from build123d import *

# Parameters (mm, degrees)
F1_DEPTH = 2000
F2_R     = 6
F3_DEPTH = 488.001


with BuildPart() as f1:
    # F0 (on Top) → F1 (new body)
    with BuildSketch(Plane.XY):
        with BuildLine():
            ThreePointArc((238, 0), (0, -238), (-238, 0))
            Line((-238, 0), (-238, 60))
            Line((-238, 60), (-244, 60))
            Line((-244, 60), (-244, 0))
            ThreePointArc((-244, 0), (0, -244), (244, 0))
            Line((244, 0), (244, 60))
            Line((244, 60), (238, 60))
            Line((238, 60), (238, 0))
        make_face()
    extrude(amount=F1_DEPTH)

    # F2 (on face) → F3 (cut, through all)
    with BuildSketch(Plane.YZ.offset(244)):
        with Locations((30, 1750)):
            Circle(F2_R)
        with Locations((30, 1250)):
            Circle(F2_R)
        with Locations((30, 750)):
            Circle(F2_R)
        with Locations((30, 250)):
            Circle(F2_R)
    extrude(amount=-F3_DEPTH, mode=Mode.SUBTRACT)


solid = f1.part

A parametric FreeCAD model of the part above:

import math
import FreeCAD as App
import Part
import Sketcher
Q = App.Units.Quantity

doc = App.newDocument("Part")
body = doc.addObject("PartDesign::Body", "Body")

sketch1 = body.newObject("Sketcher::SketchObject", "Sketch")
sketch1.AttachmentSupport = (doc.getObject("XY_Plane"), [""])
sketch1.MapMode = "FlatFace"
sketch1.addGeometry(Part.ArcOfCircle(Part.Circle(App.Vector(0, 0, 0), App.Vector(0, 0, 1), 238), math.radians(180), math.radians(360)), False)
sketch1.addGeometry(Part.LineSegment(App.Vector(-238, 0, 0), App.Vector(-238, 60, 0)), False)
sketch1.addGeometry(Part.LineSegment(App.Vector(-238, 60, 0), App.Vector(-244, 60, 0)), False)
sketch1.addGeometry(Part.LineSegment(App.Vector(-244, 60, 0), App.Vector(-244, 0, 0)), False)
sketch1.addGeometry(Part.ArcOfCircle(Part.Circle(App.Vector(0, 0, 0), App.Vector(0, 0, 1), 244), math.radians(180), math.radians(360)), False)
sketch1.addGeometry(Part.LineSegment(App.Vector(244, 0, 0), App.Vector(244, 60, 0)), False)
sketch1.addGeometry(Part.LineSegment(App.Vector(244, 60, 0), App.Vector(238, 60, 0)), False)
sketch1.addGeometry(Part.LineSegment(App.Vector(238, 60, 0), App.Vector(238, 0, 0)), False)
sketch1.addConstraint(Sketcher.Constraint("Tangent", 0, 1, 1, 1))
sketch1.addConstraint(Sketcher.Constraint("Coincident", 1, 2, 2, 1))
sketch1.addConstraint(Sketcher.Constraint("Coincident", 2, 2, 3, 1))
sketch1.addConstraint(Sketcher.Constraint("Tangent", 3, 2, 4, 1))
sketch1.addConstraint(Sketcher.Constraint("Tangent", 4, 2, 5, 1))
sketch1.addConstraint(Sketcher.Constraint("Coincident", 5, 2, 6, 1))
sketch1.addConstraint(Sketcher.Constraint("Coincident", 6, 2, 7, 1))
sketch1.addConstraint(Sketcher.Constraint("Tangent", 7, 2, 0, 2))
sketch1.addConstraint(Sketcher.Constraint("Vertical", 1))
sketch1.addConstraint(Sketcher.Constraint("Horizontal", 2))
sketch1.addConstraint(Sketcher.Constraint("Vertical", 3))
sketch1.addConstraint(Sketcher.Constraint("Vertical", 5))
sketch1.addConstraint(Sketcher.Constraint("Horizontal", 6))
sketch1.addConstraint(Sketcher.Constraint("Vertical", 7))
sketch1.addConstraint(Sketcher.Constraint("Coincident", 0, 3, -1, 1))
sketch1.addConstraint(Sketcher.Constraint("Coincident", 4, 3, -1, 1))
sketch1.addConstraint(Sketcher.Constraint("Horizontal", 2, 2, 5, 2))
sketch1.addConstraint(Sketcher.Constraint("Radius", 0, Q("238 mm")))
sketch1.addConstraint(Sketcher.Constraint("Radius", 4, Q("244 mm")))
sketch1.addConstraint(Sketcher.Constraint("DistanceY", 1, 1, 1, 2, Q("60 mm")))
pad1 = body.newObject("PartDesign::Pad", "Pad")
pad1.Profile = sketch1
pad1.Length = 2000

sketch2 = body.newObject("Sketcher::SketchObject", "Sketch001")
sketch2.AttachmentSupport = (doc.getObject("YZ_Plane"), [""])
sketch2.MapMode = "FlatFace"
sketch2.AttachmentOffset = App.Placement(App.Vector(0, 0, 244), App.Rotation())
sketch2.addGeometry(Part.Circle(App.Vector(30, 1750, 0), App.Vector(0, 0, 1), 6), False)
sketch2.addGeometry(Part.Circle(App.Vector(30, 1250, 0), App.Vector(0, 0, 1), 6), False)
sketch2.addGeometry(Part.Circle(App.Vector(30, 750, 0), App.Vector(0, 0, 1), 6), False)
sketch2.addGeometry(Part.Circle(App.Vector(30, 250, 0), App.Vector(0, 0, 1), 6), False)
sketch2.addConstraint(Sketcher.Constraint("Equal", 0, 1))
sketch2.addConstraint(Sketcher.Constraint("Equal", 1, 2))
sketch2.addConstraint(Sketcher.Constraint("Equal", 2, 3))
sketch2.addConstraint(Sketcher.Constraint("Vertical", 0, 3, 1, 3))
sketch2.addConstraint(Sketcher.Constraint("Vertical", 1, 3, 2, 3))
sketch2.addConstraint(Sketcher.Constraint("Vertical", 2, 3, 3, 3))
sketch2.addConstraint(Sketcher.Constraint("Diameter", 0, Q("12 mm")))
sketch2.addConstraint(Sketcher.Constraint("DistanceX", -1, 1, 0, 3, Q("30 mm")))
sketch2.addConstraint(Sketcher.Constraint("DistanceY", -1, 1, 0, 3, Q("1750 mm")))
sketch2.addConstraint(Sketcher.Constraint("DistanceY", -1, 1, 1, 3, Q("1250 mm")))
sketch2.addConstraint(Sketcher.Constraint("DistanceY", -1, 1, 2, 3, Q("750 mm")))
sketch2.addConstraint(Sketcher.Constraint("DistanceY", -1, 1, 3, 3, Q("250 mm")))
pocket1 = body.newObject("PartDesign::Pocket", "Pocket")
pocket1.Profile = sketch2
pocket1.Type = "ThroughAll"

doc.recompute()
